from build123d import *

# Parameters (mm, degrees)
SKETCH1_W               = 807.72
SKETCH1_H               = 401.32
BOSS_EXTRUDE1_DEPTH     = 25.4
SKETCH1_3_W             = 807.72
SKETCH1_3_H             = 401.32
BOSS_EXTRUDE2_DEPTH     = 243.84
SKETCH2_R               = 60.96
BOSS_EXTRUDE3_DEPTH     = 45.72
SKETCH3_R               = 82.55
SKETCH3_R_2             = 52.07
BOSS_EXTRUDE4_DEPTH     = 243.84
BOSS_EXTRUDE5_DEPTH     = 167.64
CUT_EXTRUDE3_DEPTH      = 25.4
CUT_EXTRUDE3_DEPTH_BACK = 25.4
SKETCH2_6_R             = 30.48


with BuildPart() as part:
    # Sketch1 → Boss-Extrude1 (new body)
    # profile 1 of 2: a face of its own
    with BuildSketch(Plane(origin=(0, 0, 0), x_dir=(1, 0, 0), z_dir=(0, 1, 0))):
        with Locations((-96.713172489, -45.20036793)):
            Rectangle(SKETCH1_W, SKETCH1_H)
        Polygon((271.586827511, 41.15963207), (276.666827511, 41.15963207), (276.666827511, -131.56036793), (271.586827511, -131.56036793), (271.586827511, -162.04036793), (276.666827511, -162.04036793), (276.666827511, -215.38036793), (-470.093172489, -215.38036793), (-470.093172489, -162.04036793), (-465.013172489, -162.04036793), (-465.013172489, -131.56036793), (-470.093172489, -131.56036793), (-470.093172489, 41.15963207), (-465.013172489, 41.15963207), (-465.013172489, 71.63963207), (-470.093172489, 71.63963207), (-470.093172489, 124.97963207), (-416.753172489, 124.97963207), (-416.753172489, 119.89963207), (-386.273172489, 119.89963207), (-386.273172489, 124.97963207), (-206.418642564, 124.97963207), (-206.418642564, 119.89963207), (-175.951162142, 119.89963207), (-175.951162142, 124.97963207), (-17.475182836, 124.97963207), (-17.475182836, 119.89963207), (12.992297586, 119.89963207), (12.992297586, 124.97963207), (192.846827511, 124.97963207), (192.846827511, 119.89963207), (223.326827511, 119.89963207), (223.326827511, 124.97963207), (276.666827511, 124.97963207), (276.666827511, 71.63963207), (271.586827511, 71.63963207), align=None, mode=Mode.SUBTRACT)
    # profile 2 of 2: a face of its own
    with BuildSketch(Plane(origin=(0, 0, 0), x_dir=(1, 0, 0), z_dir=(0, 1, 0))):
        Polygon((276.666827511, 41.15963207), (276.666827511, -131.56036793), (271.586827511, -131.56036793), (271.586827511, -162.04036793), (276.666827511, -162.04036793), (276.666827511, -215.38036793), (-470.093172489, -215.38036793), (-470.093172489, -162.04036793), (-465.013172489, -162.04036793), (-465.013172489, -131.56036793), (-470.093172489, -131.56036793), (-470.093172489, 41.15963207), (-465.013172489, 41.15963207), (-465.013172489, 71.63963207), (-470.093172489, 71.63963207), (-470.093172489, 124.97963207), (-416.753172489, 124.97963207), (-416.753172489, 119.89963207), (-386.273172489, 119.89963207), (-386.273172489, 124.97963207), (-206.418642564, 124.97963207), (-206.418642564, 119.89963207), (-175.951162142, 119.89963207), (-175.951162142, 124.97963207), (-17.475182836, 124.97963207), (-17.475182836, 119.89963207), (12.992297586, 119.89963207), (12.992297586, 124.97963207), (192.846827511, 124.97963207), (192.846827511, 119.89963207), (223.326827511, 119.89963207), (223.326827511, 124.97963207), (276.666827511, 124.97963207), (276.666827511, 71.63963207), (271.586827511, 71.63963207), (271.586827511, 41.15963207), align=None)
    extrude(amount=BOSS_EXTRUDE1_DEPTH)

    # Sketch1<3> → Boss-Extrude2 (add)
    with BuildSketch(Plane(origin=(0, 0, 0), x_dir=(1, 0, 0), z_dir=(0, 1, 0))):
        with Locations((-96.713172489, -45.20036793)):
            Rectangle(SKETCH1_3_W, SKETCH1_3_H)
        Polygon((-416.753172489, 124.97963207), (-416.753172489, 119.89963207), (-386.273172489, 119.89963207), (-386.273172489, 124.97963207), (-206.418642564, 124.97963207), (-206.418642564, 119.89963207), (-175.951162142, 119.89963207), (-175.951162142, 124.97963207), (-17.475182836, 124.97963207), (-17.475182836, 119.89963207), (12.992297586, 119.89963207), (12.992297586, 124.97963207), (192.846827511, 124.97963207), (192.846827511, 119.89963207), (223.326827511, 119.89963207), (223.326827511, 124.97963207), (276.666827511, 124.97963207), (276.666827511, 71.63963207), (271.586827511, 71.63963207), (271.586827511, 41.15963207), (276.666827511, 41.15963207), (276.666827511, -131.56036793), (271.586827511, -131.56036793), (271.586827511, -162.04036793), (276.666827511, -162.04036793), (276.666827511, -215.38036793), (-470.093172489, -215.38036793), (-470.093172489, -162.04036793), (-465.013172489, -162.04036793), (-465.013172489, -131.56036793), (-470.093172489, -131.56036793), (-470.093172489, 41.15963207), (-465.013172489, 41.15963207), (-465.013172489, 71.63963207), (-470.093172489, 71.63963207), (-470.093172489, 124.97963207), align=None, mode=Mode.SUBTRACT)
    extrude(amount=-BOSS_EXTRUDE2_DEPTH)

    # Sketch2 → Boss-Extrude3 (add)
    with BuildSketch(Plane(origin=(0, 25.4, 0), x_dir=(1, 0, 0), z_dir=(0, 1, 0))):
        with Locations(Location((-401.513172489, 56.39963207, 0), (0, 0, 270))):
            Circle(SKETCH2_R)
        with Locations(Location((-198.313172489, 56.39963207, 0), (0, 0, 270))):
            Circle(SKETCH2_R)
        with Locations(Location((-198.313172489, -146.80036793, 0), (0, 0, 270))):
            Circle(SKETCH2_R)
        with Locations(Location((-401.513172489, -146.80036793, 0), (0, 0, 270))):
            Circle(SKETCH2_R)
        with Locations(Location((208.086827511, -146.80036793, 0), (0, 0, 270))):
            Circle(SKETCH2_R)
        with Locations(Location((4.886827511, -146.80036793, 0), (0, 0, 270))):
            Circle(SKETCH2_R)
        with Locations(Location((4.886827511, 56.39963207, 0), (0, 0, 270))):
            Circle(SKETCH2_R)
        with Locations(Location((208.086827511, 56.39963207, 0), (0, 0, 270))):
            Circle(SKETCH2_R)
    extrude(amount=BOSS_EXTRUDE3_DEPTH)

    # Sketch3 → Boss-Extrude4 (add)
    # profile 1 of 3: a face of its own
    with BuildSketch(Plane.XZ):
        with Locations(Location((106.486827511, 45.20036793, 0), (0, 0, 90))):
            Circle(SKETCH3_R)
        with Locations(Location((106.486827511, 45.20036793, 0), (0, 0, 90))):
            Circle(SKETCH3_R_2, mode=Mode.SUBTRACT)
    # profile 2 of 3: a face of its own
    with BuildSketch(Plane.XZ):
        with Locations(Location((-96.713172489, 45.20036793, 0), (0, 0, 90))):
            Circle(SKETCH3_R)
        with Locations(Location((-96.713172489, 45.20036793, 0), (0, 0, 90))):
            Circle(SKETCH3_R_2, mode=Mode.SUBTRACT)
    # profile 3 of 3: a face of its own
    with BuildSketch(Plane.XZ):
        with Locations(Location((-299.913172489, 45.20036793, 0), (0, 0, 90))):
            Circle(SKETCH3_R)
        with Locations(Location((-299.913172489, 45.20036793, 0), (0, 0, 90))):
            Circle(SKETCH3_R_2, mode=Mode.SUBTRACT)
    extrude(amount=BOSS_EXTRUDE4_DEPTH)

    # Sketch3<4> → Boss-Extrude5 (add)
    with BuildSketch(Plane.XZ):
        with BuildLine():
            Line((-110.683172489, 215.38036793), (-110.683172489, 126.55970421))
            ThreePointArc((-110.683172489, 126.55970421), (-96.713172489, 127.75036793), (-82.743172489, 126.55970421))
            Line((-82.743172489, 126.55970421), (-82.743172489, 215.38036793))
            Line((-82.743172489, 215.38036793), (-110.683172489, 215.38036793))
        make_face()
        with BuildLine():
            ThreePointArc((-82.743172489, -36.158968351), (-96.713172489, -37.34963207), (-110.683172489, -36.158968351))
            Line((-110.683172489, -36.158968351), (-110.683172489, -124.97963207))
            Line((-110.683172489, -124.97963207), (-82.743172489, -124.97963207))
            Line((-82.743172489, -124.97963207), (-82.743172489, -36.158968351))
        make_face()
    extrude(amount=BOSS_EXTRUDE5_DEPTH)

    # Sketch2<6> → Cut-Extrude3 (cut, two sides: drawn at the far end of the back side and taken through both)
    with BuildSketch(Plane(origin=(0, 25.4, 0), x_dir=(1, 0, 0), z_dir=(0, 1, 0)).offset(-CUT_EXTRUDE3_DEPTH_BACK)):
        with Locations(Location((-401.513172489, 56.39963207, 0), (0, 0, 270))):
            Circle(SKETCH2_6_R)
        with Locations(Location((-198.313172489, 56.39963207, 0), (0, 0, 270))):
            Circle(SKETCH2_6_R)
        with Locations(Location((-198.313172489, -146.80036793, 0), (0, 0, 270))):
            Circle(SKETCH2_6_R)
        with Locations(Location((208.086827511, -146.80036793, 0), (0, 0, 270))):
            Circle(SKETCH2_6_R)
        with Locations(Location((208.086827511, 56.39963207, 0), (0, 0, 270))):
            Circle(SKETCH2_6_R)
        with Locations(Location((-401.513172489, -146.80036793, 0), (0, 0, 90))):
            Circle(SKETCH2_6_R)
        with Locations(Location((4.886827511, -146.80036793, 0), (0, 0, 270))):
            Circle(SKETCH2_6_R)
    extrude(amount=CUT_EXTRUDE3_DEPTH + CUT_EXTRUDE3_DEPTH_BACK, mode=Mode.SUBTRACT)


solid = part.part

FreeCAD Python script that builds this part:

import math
import FreeCAD as App
import Part
import Sketcher
from FreeCAD import Vector
Q = App.Units.Quantity


def add_polygon(sketch, points):
    """Adds a closed chain of lines whose ends are joined by coincident constraints."""
    first, n = sketch.GeometryCount, len(points)
    for a, b in zip(points, points[1:] + points[:1]):
        sketch.addGeometry(Part.LineSegment(App.Vector(*a, 0), App.Vector(*b, 0)), False)
    for i in range(n):
        sketch.addConstraint(Sketcher.Constraint("Coincident", first + i, 2, first + (i + 1) % n, 1))

doc = App.newDocument("Part")
body = doc.addObject("PartDesign::Body", "Body")

sketch1 = doc.addObject("Sketcher::SketchObject", "Sketch")
body.addObject(sketch1)
sketch1.AttachmentSupport = (doc.XZ_Plane, [""])
sketch1.MapMode = "FlatFace"
add_polygon(sketch1, [(-501, -155), (-501, 246), (307, 246), (307, -155)])
sketch1.addConstraint([
    Sketcher.Constraint("Vertical", 0),
    Sketcher.Constraint("Horizontal", 1),
    Sketcher.Constraint("Vertical", 2),
    Sketcher.Constraint("Horizontal", 3),
    Sketcher.Constraint("DistanceX", 1, 1, 1, 2, Q("31.8 in")),
    Sketcher.Constraint("DistanceY", 0, 1, 0, 2, Q("15.8 in")),
    Sketcher.Constraint("DistanceX", 0, 2, -1, 1, Q("500.573172 mm")),
    Sketcher.Constraint("DistanceY", -1, 1, 0, 2, Q("245.860368 mm")),
])
pad1 = doc.addObject("PartDesign::Pad", "Pad")
body.addObject(pad1)
pad1.Profile = sketch1
pad1.Length = Q("1 in")
pad1.Reversed = True

sketch2 = doc.addObject("Sketcher::SketchObject", "Sketch001")
body.addObject(sketch2)
sketch2.AttachmentSupport = (doc.XZ_Plane, [""])
sketch2.MapMode = "FlatFace"
add_polygon(sketch2, [(-501, -155), (-501, 246), (307, 246), (307, -155)])
add_polygon(sketch2, [(-470, -125), (-417, -125), (-417, -120), (-386, -120), (-386, -125), (-206, -125), (-206, -120), (-176, -120), (-176, -125), (-17, -125), (-17, -120), (13, -120), (13, -125), (193, -125), (193, -120), (223, -120), (223, -125), (277, -125), (277, -72), (272, -72), (272, -41), (277, -41), (277, 132), (272, 132), (272, 162), (277, 162), (277, 215), (-470, 215), (-470, 162), (-465, 162), (-465, 132), (-470, 132), (-470, -41), (-465, -41), (-465, -72), (-470, -72)])
sketch2.addConstraint([
    Sketcher.Constraint("Vertical", 0),
    Sketcher.Constraint("Horizontal", 1),
    Sketcher.Constraint("Vertical", 2),
    Sketcher.Constraint("Horizontal", 3),
    Sketcher.Constraint("Horizontal", 4),
    Sketcher.Constraint("Vertical", 5),
    Sketcher.Constraint("Horizontal", 6),
    Sketcher.Constraint("Vertical", 7),
    Sketcher.Constraint("Horizontal", 8),
    Sketcher.Constraint("Vertical", 9),
    Sketcher.Constraint("Horizontal", 10),
    Sketcher.Constraint("Vertical", 11),
    Sketcher.Constraint("Horizontal", 12),
    Sketcher.Constraint("Vertical", 13),
    Sketcher.Constraint("Horizontal", 14),
    Sketcher.Constraint("Vertical", 15),
    Sketcher.Constraint("Horizontal", 16),
    Sketcher.Constraint("Vertical", 17),
    Sketcher.Constraint("Horizontal", 18),
    Sketcher.Constraint("Vertical", 19),
    Sketcher.Constraint("Horizontal", 20),
    Sketcher.Constraint("Vertical", 21),
    Sketcher.Constraint("Horizontal", 22),
    Sketcher.Constraint("Vertical", 23),
    Sketcher.Constraint("Horizontal", 24),
    Sketcher.Constraint("Vertical", 25),
    Sketcher.Constraint("Horizontal", 26),
    Sketcher.Constraint("Vertical", 27),
    Sketcher.Constraint("Horizontal", 28),
    Sketcher.Constraint("Vertical", 29),
    Sketcher.Constraint("Horizontal", 30),
    Sketcher.Constraint("Vertical", 31),
    Sketcher.Constraint("Horizontal", 32),
    Sketcher.Constraint("Vertical", 33),
    Sketcher.Constraint("Horizontal", 34),
    Sketcher.Constraint("Vertical", 35),
    Sketcher.Constraint("Horizontal", 36),
    Sketcher.Constraint("Vertical", 37),
    Sketcher.Constraint("Horizontal", 38),
    Sketcher.Constraint("Vertical", 39),
    Sketcher.Constraint("Horizontal", 4, 2, 7, 2),
    Sketcher.Constraint("Horizontal", 6, 2, 9, 2),
    Sketcher.Constraint("Horizontal", 8, 2, 11, 2),
    Sketcher.Constraint("Horizontal", 10, 2, 13, 2),
    Sketcher.Constraint("Horizontal", 12, 2, 15, 2),
    Sketcher.Constraint("Horizontal", 14, 2, 17, 2),
    Sketcher.Constraint("Horizontal", 16, 2, 19, 2),
    Sketcher.Constraint("Horizontal", 28, 2, 31, 2),
    Sketcher.Constraint("Horizontal", 26, 2, 33, 2),
    Sketcher.Constraint("Horizontal", 24, 2, 35, 2),
    Sketcher.Constraint("Horizontal", 22, 2, 37, 2),
    Sketcher.Constraint("Vertical", 21, 2, 24, 2),
    Sketcher.Constraint("Vertical", 23, 2, 26, 2),
    Sketcher.Constraint("Vertical", 25, 2, 28, 2),
    Sketcher.Constraint("Vertical", 31, 2, 34, 2),
    Sketcher.Constraint("Vertical", 33, 2, 36, 2),
    Sketcher.Constraint("Vertical", 35, 2, 38, 2),
    Sketcher.Constraint("Equal", 10, 14),
    Sketcher.Constraint("Equal", 8, 16),
    Sketcher.Constraint("Equal", 6, 18),
    Sketcher.Constraint("Equal", 4, 20),
    Sketcher.Constraint("Equal", 28, 32),
    Sketcher.Constraint("Equal", 38, 5),
    Sketcher.Constraint("Equal", 20, 21),
    Sketcher.Constraint("Equal", 18, 23),
    Sketcher.Constraint("Equal", 23, 27),
    Sketcher.Constraint("Equal", 21, 29),
    Sketcher.Constraint("DistanceX", 1, 1, 1, 2, Q("31.8 in")),
    Sketcher.Constraint("DistanceX", 4, 1, 4, 2, Q("2.1 in")),
    Sketcher.Constraint("DistanceX", 6, 1, 6, 2, Q("1.2 in")),
    Sketcher.Constraint("DistanceX", 22, 2, 22, 1, Q("0.2 in")),
    Sketcher.Constraint("DistanceX", 30, 2, 30, 1, Q("29.4 in")),
    Sketcher.Constraint("DistanceY", 0, 1, 0, 2, Q("15.8 in")),
    Sketcher.Constraint("DistanceY", 25, 1, 25, 2, Q("6.8 in")),
    Sketcher.Constraint("DistanceX", 3, 2, 4, 2, Q("3.3 in")),
    Sketcher.Constraint("DistanceY", 3, 2, 4, 2, Q("1.2 in")),
    Sketcher.Constraint("DistanceX", 8, 1, 8, 2, Q("179.85453 mm")),
    Sketcher.Constraint("DistanceX", 10, 1, 10, 2, Q("30.46748 mm")),
    Sketcher.Constraint("DistanceX", 0, 2, -1, 1, Q("500.573172 mm")),
    Sketcher.Constraint("DistanceY", -1, 1, 0, 2, Q("245.860368 mm")),
])
pad2 = doc.addObject("PartDesign::Pad", "Pad001")
body.addObject(pad2)
pad2.Profile = sketch2
pad2.Length = Q("9.6 in")

sketch3 = doc.addObject("Sketcher::SketchObject", "Sketch002")
body.addObject(sketch3)
sketch3.AttachmentSupport = (doc.XZ_Plane, [""])
sketch3.MapMode = "FlatFace"
sketch3.AttachmentOffset = App.Placement(Vector(0, 0, -1 * 25.4), App.Rotation())
sketch3.addGeometry([
    Part.Circle(Vector(-402, -56, 0), Vector(0, 0, 1), 61),
    Part.Circle(Vector(-198, -56, 0), Vector(0, 0, 1), 61),
    Part.Circle(Vector(-198, 147, 0), Vector(0, 0, 1), 61),
    Part.Circle(Vector(-402, 147, 0), Vector(0, 0, 1), 61),
    Part.Circle(Vector(208, 147, 0), Vector(0, 0, 1), 61),
    Part.Circle(Vector(5, 147, 0), Vector(0, 0, 1), 61),
    Part.Circle(Vector(5, -56, 0), Vector(0, 0, 1), 61),
    Part.Circle(Vector(208, -56, 0), Vector(0, 0, 1), 61),
], False)
sketch3.addConstraint([
    Sketcher.Constraint("Equal", 0, 1),
    Sketcher.Constraint("Equal", 1, 2),
    Sketcher.Constraint("Equal", 2, 3),
    Sketcher.Constraint("Equal", 3, 4),
    Sketcher.Constraint("Equal", 4, 5),
    Sketcher.Constraint("Equal", 5, 6),
    Sketcher.Constraint("Equal", 6, 7),
    Sketcher.Constraint("Horizontal", 0, 3, 1, 3),
    Sketcher.Constraint("Horizontal", 2, 3, 3, 3),
    Sketcher.Constraint("Horizontal", 3, 3, 4, 3),
    Sketcher.Constraint("Horizontal", 4, 3, 5, 3),
    Sketcher.Constraint("Horizontal", 1, 3, 6, 3),
    Sketcher.Constraint("Horizontal", 6, 3, 7, 3),
    Sketcher.Constraint("Vertical", 1, 3, 2, 3),
    Sketcher.Constraint("Vertical", 0, 3, 3, 3),
    Sketcher.Constraint("Vertical", 5, 3, 6, 3),
    Sketcher.Constraint("Vertical", 4, 3, 7, 3),
    Sketcher.Constraint("Diameter", 0, Q("4.8 in")),
    Sketcher.Constraint("DistanceX", 0, 3, 1, 3, Q("8 in")),
    Sketcher.Constraint("DistanceY", 1, 3, 2, 3, Q("8 in")),
    Sketcher.Constraint("DistanceX", 2, 3, 4, 3, Q("16 in")),
    Sketcher.Constraint("DistanceX", 5, 3, 4, 3, Q("8 in")),
    Sketcher.Constraint("DistanceX", 0, 3, -1, 1, Q("401.513172 mm")),
    Sketcher.Constraint("DistanceY", 0, 3, -1, 1, Q("56.399632 mm")),
])
pad3 = doc.addObject("PartDesign::Pad", "Pad002")
body.addObject(pad3)
pad3.Profile = sketch3
pad3.Length = Q("1.8 in")
pad3.Reversed = True

sketch4 = doc.addObject("Sketcher::SketchObject", "Sketch003")
body.addObject(sketch4)
sketch4.AttachmentSupport = (doc.XZ_Plane, [""])
sketch4.MapMode = "FlatFace"
sketch4.addGeometry([
    Part.Circle(Vector(106, 45, 0), Vector(0, 0, 1), 83),
    Part.Circle(Vector(106, 45, 0), Vector(0, 0, 1), 52),
    Part.Circle(Vector(-97, 45, 0), Vector(0, 0, 1), 83),
    Part.Circle(Vector(-97, 45, 0), Vector(0, 0, 1), 52),
    Part.Circle(Vector(-300, 45, 0), Vector(0, 0, 1), 83),
    Part.Circle(Vector(-300, 45, 0), Vector(0, 0, 1), 52),
], False)
sketch4.addConstraint([
    Sketcher.Constraint("Coincident", 1, 3, 0, 3),
    Sketcher.Constraint("Coincident", 3, 3, 2, 3),
    Sketcher.Constraint("Coincident", 5, 3, 4, 3),
    Sketcher.Constraint("Equal", 0, 2),
    Sketcher.Constraint("Equal", 1, 3),
    Sketcher.Constraint("Equal", 2, 4),
    Sketcher.Constraint("Equal", 3, 5),
    Sketcher.Constraint("Horizontal", 1, 3, 2, 3),
    Sketcher.Constraint("Horizontal", 3, 3, 4, 3),
    Sketcher.Constraint("Diameter", 0, Q("6.5 in")),
    Sketcher.Constraint("Diameter", 1, Q("4.1 in")),
    Sketcher.Constraint("DistanceX", 2, 3, 0, 3, Q("8 in")),
    Sketcher.Constraint("DistanceX", 4, 3, 2, 3, Q("8 in")),
    Sketcher.Constraint("DistanceX", -1, 1, 0, 3, Q("106.486828 mm")),
    Sketcher.Constraint("DistanceY", -1, 1, 0, 3, Q("45.200368 mm")),
])
pad4 = doc.addObject("PartDesign::Pad", "Pad003")
body.addObject(pad4)
pad4.Profile = sketch4
pad4.Length = Q("9.6 in")

sketch5 = doc.addObject("Sketcher::SketchObject", "Sketch004")
body.addObject(sketch5)
sketch5.AttachmentSupport = (doc.XZ_Plane, [""])
sketch5.MapMode = "FlatFace"
sketch5.addGeometry([
    Part.LineSegment(Vector(-111, 215, 0), Vector(-111, 127, 0)),
    Part.ArcOfCircle(Part.Circle(Vector(-97, 45, 0), Vector(0, 0, 1), 83), math.radians(80.26), math.radians(99.74)),
    Part.LineSegment(Vector(-83, 127, 0), Vector(-83, 215, 0)),
    Part.LineSegment(Vector(-83, 215, 0), Vector(-111, 215, 0)),
    Part.ArcOfCircle(Part.Circle(Vector(-97, 45, 0), Vector(0, 0, 1), 83), math.radians(-99.74), math.radians(-80.26)),
    Part.LineSegment(Vector(-111, -36, 0), Vector(-111, -125, 0)),
    Part.LineSegment(Vector(-111, -125, 0), Vector(-83, -125, 0)),
    Part.LineSegment(Vector(-83, -125, 0), Vector(-83, -36, 0)),
], False)
sketch5.addConstraint([
    Sketcher.Constraint("Coincident", 0, 2, 1, 2),
    Sketcher.Constraint("Coincident", 1, 1, 2, 1),
    Sketcher.Constraint("Coincident", 2, 2, 3, 1),
    Sketcher.Constraint("Coincident", 3, 2, 0, 1),
    Sketcher.Constraint("Coincident", 4, 1, 5, 1),
    Sketcher.Constraint("Coincident", 5, 2, 6, 1),
    Sketcher.Constraint("Coincident", 6, 2, 7, 1),
    Sketcher.Constraint("Coincident", 7, 2, 4, 2),
    Sketcher.Constraint("Vertical", 0),
    Sketcher.Constraint("Vertical", 2),
    Sketcher.Constraint("Horizontal", 3),
    Sketcher.Constraint("Vertical", 5),
    Sketcher.Constraint("Horizontal", 6),
    Sketcher.Constraint("Vertical", 7),
    Sketcher.Constraint("Coincident", 4, 3, 1, 3),
    Sketcher.Constraint("Equal", 1, 4),
    Sketcher.Constraint("Horizontal", 0, 2, 1, 1),
    Sketcher.Constraint("Horizontal", 4, 1, 7, 2),
    Sketcher.Constraint("Vertical", 3, 2, 4, 1),
    Sketcher.Constraint("Equal", 2, 5),
    Sketcher.Constraint("Radius", 1, Q("3.25 in")),
    Sketcher.Constraint("DistanceX", 3, 2, 3, 1, Q("1.1 in")),
    Sketcher.Constraint("DistanceY", 4, 3, 2, 2, Q("6.7 in")),
    Sketcher.Constraint("DistanceY", 4, 1, -1, 1, Q("36.158968 mm")),
    Sketcher.Constraint("DistanceX", 1, 3, -1, 1, Q("96.713172 mm")),
])
pad5 = doc.addObject("PartDesign::Pad", "Pad004")
body.addObject(pad5)
pad5.Profile = sketch5
pad5.Length = Q("6.6 in")

sketch6 = doc.addObject("Sketcher::SketchObject", "Sketch005")
body.addObject(sketch6)
sketch6.AttachmentSupport = (doc.XZ_Plane, [""])
sketch6.MapMode = "FlatFace"
sketch6.AttachmentOffset = App.Placement(Vector(0, 0, -1 * 25.4), App.Rotation())
sketch6.addGeometry([
    Part.Circle(Vector(-402, -56, 0), Vector(0, 0, 1), 30),
    Part.Circle(Vector(-198, -56, 0), Vector(0, 0, 1), 30),
    Part.Circle(Vector(-198, 147, 0), Vector(0, 0, 1), 30),
    Part.Circle(Vector(208, 147, 0), Vector(0, 0, 1), 30),
    Part.Circle(Vector(208, -56, 0), Vector(0, 0, 1), 30),
    Part.Circle(Vector(-402, 147, 0), Vector(0, 0, 1), 30),
    Part.Circle(Vector(5, 147, 0), Vector(0, 0, 1), 30),
], False)
sketch6.addConstraint([
    Sketcher.Constraint("Equal", 0, 1),
    Sketcher.Constraint("Equal", 1, 2),
    Sketcher.Constraint("Equal", 2, 3),
    Sketcher.Constraint("Equal", 3, 4),
    Sketcher.Constraint("Equal", 4, 5),
    Sketcher.Constraint("Equal", 5, 6),
    Sketcher.Constraint("Horizontal", 0, 3, 1, 3),
    Sketcher.Constraint("Horizontal", 2, 3, 3, 3),
    Sketcher.Constraint("Horizontal", 1, 3, 4, 3),
    Sketcher.Constraint("Horizontal", 3, 3, 5, 3),
    Sketcher.Constraint("Horizontal", 5, 3, 6, 3),
    Sketcher.Constraint("Vertical", 1, 3, 2, 3),
    Sketcher.Constraint("Vertical", 3, 3, 4, 3),
    Sketcher.Constraint("Vertical", 0, 3, 5, 3),
    Sketcher.Constraint("Diameter", 0, Q("2.4 in")),
    Sketcher.Constraint("DistanceX", 0, 3, 1, 3, Q("8 in")),
    Sketcher.Constraint("DistanceY", 1, 3, 2, 3, Q("8 in")),
    Sketcher.Constraint("DistanceX", 2, 3, 3, 3, Q("16 in")),
    Sketcher.Constraint("DistanceX", 6, 3, 3, 3, Q("8 in")),
    Sketcher.Constraint("DistanceX", 0, 3, -1, 1, Q("401.513172 mm")),
    Sketcher.Constraint("DistanceY", 0, 3, -1, 1, Q("56.399632 mm")),
])
pocket1 = doc.addObject("PartDesign::Pocket", "Pocket")
body.addObject(pocket1)
pocket1.Profile = sketch6
pocket1.Type = "TwoLengths"
pocket1.Length = Q("1 in")
pocket1.Length2 = Q("1 in")

doc.recompute()
